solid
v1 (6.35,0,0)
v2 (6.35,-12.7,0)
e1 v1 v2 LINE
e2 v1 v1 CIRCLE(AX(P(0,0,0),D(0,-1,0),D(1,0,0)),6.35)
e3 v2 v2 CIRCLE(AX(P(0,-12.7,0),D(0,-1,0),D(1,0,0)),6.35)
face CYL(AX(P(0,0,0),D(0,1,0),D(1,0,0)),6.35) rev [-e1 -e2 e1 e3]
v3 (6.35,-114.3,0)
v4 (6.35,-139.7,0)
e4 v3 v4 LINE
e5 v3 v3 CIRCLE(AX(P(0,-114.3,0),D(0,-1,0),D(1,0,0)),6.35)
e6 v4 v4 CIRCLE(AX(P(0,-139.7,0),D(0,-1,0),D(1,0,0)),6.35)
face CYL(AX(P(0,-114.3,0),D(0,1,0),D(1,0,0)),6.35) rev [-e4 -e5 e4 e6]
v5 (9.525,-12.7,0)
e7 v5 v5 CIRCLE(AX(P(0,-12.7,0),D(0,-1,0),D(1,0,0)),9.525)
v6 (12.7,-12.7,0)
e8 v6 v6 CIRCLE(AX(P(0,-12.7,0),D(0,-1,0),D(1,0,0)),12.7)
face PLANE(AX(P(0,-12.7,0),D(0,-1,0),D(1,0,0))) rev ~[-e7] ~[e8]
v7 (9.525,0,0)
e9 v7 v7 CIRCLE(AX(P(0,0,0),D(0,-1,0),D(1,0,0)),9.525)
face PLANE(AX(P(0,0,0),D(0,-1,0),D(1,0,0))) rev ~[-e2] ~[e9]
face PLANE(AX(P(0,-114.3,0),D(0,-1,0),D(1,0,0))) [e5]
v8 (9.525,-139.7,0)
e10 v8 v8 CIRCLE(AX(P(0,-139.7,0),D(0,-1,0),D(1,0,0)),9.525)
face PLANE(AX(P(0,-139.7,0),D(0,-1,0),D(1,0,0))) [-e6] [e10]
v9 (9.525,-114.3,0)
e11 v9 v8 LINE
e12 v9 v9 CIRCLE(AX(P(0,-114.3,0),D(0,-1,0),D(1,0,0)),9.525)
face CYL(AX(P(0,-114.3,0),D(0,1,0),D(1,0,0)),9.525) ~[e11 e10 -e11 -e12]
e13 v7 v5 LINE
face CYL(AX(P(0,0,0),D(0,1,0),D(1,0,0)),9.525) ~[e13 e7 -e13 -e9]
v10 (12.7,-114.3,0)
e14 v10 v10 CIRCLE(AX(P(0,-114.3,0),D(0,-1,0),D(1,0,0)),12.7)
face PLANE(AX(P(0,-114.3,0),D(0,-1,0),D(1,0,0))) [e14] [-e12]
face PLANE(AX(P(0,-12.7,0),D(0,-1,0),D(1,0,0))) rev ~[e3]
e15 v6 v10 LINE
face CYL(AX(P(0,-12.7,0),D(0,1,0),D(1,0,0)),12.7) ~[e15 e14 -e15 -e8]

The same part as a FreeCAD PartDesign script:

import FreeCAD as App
import Part
import Sketcher

V = App.Vector
Q = App.Units.Quantity

doc = App.newDocument("Part")
body = doc.addObject("PartDesign::Body", "Body")

# Sketch on XZ plane
sketch1 = body.newObject("Sketcher::SketchObject", "Sketch")
sketch1.AttachmentSupport = (doc.getObject("XZ_Plane"), [""])
sketch1.MapMode = "FlatFace"
sketch1.addGeometry(Part.Circle(V(0, 0, 0), V(0, 0, 1), 10), False)
sketch1.addGeometry(Part.Circle(V(0, 0, 0), V(0, 0, 1), 6), False)
sketch1.addConstraint(Sketcher.Constraint("Coincident", 0, 3, -1, 1))
sketch1.addConstraint(Sketcher.Constraint("Coincident", 1, 3, -1, 1))
sketch1.addConstraint(Sketcher.Constraint("Diameter", 1, Q("0.5 in")))
sketch1.addConstraint(Sketcher.Constraint("Diameter", 0, Q("0.75 in")))
pad1 = body.newObject("PartDesign::Pad", "Pad")
pad1.Profile = sketch1
pad1.Length = Q("0.5 in")

# Sketch on XZ plane
sketch2 = body.newObject("Sketcher::SketchObject", "Sketch001")
sketch2.AttachmentSupport = (doc.getObject("XZ_Plane"), [""])
sketch2.MapMode = "FlatFace"
sketch2.AttachmentOffset = App.Placement(V(0, 0, 0.5 * 25.4), App.Rotation())
sketch2.addGeometry(Part.Circle(V(0, 0, 0), V(0, 0, 1), 13), False)
sketch2.addConstraint(Sketcher.Constraint("Coincident", 0, 3, -1, 1))
sketch2.addConstraint(Sketcher.Constraint("Diameter", 0, Q("1 in")))
pad2 = body.newObject("PartDesign::Pad", "Pad001")
pad2.Profile = sketch2
pad2.Length = Q("4 in")

# Sketch on XZ plane
sketch3 = body.newObject("Sketcher::SketchObject", "Sketch002")
sketch3.AttachmentSupport = (doc.getObject("XZ_Plane"), [""])
sketch3.MapMode = "FlatFace"
sketch3.AttachmentOffset = App.Placement(V(0, 0, 4.5 * 25.4), App.Rotation())
sketch3.addGeometry(Part.Circle(V(0, 0, 0), V(0, 0, 1), 10), False)
sketch3.addGeometry(Part.Circle(V(0, 0, 0), V(0, 0, 1), 6), False)
sketch3.addConstraint(Sketcher.Constraint("Coincident", 0, 3, -1, 1))
sketch3.addConstraint(Sketcher.Constraint("Coincident", 1, 3, -1, 1))
sketch3.addConstraint(Sketcher.Constraint("Diameter", 1, Q("0.5 in")))
sketch3.addConstraint(Sketcher.Constraint("Diameter", 0, Q("0.75 in")))
pad3 = body.newObject("PartDesign::Pad", "Pad002")
pad3.Profile = sketch3
pad3.Length = Q("1 in")

doc.recompute()
